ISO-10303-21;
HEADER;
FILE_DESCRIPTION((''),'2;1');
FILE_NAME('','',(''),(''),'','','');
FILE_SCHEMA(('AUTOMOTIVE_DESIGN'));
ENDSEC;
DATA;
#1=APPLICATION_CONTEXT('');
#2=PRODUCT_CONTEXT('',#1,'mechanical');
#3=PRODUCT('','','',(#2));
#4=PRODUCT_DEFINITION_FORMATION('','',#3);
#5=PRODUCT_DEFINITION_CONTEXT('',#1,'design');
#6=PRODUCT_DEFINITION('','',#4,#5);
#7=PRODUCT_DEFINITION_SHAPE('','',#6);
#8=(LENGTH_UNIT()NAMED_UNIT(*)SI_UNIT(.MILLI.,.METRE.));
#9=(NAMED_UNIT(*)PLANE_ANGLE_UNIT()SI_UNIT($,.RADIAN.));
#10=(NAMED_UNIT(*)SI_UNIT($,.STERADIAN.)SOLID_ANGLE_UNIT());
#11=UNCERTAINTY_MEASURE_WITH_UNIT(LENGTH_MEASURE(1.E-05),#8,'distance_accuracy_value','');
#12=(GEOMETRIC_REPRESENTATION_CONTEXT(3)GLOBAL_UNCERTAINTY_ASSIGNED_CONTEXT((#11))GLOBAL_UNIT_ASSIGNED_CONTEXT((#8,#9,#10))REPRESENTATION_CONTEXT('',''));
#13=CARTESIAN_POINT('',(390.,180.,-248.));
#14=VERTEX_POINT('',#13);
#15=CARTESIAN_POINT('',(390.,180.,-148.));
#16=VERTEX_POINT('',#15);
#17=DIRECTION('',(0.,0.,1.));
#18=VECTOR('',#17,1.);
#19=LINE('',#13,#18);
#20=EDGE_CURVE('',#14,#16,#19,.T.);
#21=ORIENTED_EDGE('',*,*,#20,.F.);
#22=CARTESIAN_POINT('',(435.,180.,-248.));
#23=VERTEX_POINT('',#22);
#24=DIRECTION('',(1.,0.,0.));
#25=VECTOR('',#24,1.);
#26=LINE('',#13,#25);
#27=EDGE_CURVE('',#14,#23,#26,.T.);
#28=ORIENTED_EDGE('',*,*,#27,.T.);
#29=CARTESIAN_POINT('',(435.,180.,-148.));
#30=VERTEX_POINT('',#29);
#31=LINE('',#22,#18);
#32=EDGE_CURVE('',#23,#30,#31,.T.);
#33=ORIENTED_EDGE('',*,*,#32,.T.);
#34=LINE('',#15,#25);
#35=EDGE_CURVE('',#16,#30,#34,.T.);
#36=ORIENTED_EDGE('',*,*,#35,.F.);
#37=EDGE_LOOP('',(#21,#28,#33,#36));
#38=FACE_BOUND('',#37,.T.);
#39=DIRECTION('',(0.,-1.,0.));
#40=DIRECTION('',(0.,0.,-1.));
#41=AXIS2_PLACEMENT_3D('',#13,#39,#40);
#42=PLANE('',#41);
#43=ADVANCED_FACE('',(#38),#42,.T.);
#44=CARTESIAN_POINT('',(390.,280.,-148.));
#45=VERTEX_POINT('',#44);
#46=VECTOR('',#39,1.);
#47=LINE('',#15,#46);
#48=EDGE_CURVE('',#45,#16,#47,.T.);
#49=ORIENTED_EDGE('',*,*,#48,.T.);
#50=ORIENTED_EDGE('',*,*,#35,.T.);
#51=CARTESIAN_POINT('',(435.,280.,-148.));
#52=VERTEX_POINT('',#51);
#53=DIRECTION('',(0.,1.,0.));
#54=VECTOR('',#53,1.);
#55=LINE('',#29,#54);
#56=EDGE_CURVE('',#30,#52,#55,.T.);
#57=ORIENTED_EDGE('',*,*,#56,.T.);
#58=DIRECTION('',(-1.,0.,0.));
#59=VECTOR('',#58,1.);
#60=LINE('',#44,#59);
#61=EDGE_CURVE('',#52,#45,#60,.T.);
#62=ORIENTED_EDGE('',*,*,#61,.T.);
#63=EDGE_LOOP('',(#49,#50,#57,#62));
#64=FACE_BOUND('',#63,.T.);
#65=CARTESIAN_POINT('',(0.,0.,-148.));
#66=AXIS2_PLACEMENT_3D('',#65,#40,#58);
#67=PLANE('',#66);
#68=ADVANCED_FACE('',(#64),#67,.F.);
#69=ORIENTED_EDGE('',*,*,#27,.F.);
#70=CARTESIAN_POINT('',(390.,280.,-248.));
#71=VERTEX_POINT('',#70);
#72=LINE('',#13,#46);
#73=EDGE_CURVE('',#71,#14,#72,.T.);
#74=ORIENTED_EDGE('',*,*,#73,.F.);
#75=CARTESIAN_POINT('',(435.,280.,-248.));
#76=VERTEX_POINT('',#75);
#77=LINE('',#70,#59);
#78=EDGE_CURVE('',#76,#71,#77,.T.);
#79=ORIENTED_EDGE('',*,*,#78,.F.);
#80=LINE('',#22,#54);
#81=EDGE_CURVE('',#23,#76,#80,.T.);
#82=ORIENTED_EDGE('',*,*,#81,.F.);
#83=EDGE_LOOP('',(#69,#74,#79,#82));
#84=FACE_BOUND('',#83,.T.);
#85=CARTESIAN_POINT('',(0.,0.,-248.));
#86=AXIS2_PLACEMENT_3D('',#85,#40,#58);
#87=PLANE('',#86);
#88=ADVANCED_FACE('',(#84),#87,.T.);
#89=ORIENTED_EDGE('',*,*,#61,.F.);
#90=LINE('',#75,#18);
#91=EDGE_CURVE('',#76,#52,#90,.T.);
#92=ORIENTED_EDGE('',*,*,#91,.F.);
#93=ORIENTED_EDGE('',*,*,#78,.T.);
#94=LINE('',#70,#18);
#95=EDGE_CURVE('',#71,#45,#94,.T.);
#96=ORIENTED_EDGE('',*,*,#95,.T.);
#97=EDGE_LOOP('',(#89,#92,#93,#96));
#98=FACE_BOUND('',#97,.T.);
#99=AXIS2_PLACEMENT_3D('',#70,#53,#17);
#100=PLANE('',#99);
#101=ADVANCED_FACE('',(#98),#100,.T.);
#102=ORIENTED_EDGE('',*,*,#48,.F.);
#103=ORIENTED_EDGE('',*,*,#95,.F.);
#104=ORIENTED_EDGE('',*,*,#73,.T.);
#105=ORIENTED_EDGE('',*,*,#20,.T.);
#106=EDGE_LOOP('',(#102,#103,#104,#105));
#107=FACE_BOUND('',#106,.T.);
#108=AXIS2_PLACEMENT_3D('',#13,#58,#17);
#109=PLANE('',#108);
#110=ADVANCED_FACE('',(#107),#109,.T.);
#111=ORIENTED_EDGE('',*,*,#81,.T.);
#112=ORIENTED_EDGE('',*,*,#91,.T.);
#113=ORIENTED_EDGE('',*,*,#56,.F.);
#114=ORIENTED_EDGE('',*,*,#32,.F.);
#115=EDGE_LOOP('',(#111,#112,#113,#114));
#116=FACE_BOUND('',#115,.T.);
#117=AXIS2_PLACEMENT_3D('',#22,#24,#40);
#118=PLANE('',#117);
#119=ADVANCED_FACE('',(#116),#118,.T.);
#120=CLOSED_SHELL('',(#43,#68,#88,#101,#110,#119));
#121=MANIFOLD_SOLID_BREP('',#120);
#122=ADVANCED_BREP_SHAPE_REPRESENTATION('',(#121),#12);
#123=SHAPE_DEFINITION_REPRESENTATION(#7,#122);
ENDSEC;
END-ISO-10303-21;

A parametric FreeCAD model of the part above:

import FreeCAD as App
import Part
import Sketcher

V = App.Vector
Q = App.Units.Quantity


def add_polygon(sketch, points):
    """Adds a closed chain of lines whose ends are joined by coincident constraints."""
    first, n = sketch.GeometryCount, len(points)
    for a, b in zip(points, points[1:] + points[:1]):
        sketch.addGeometry(Part.LineSegment(App.Vector(*a, 0), App.Vector(*b, 0)), False)
    for i in range(n):
        sketch.addConstraint(Sketcher.Constraint("Coincident", first + i, 2, first + (i + 1) % n, 1))

doc = App.newDocument("Part")
body = doc.addObject("PartDesign::Body", "Body")

# Sketch on XY plane
sketch1 = doc.addObject("Sketcher::SketchObject", "Sketch")
body.addObject(sketch1)
sketch1.AttachmentSupport = (doc.XY_Plane, [""])
sketch1.MapMode = "FlatFace"
sketch1.AttachmentOffset = App.Placement(V(0, 0, -148), App.Rotation())
add_polygon(sketch1, [(390, 280), (390, 180), (435, 180), (435, 280)])  # lines 0-3
sketch1.addConstraint([
    Sketcher.Constraint("Vertical", 0),
    Sketcher.Constraint("Horizontal", 1),
    Sketcher.Constraint("Vertical", 2),
    Sketcher.Constraint("Horizontal", 3),
    Sketcher.Constraint("DistanceX", 1, 1, 1, 2, Q("45 mm")),
    Sketcher.Constraint("DistanceY", 0, 2, 0, 1, Q("100 mm")),
    Sketcher.Constraint("DistanceX", -1, 1, 0, 2, Q("390 mm")),
    Sketcher.Constraint("DistanceY", -1, 1, 0, 2, Q("180 mm")),
])
pad1 = doc.addObject("PartDesign::Pad", "Pad")
body.addObject(pad1)
pad1.Profile = sketch1
pad1.Length = 100
pad1.Reversed = True

doc.recompute()
